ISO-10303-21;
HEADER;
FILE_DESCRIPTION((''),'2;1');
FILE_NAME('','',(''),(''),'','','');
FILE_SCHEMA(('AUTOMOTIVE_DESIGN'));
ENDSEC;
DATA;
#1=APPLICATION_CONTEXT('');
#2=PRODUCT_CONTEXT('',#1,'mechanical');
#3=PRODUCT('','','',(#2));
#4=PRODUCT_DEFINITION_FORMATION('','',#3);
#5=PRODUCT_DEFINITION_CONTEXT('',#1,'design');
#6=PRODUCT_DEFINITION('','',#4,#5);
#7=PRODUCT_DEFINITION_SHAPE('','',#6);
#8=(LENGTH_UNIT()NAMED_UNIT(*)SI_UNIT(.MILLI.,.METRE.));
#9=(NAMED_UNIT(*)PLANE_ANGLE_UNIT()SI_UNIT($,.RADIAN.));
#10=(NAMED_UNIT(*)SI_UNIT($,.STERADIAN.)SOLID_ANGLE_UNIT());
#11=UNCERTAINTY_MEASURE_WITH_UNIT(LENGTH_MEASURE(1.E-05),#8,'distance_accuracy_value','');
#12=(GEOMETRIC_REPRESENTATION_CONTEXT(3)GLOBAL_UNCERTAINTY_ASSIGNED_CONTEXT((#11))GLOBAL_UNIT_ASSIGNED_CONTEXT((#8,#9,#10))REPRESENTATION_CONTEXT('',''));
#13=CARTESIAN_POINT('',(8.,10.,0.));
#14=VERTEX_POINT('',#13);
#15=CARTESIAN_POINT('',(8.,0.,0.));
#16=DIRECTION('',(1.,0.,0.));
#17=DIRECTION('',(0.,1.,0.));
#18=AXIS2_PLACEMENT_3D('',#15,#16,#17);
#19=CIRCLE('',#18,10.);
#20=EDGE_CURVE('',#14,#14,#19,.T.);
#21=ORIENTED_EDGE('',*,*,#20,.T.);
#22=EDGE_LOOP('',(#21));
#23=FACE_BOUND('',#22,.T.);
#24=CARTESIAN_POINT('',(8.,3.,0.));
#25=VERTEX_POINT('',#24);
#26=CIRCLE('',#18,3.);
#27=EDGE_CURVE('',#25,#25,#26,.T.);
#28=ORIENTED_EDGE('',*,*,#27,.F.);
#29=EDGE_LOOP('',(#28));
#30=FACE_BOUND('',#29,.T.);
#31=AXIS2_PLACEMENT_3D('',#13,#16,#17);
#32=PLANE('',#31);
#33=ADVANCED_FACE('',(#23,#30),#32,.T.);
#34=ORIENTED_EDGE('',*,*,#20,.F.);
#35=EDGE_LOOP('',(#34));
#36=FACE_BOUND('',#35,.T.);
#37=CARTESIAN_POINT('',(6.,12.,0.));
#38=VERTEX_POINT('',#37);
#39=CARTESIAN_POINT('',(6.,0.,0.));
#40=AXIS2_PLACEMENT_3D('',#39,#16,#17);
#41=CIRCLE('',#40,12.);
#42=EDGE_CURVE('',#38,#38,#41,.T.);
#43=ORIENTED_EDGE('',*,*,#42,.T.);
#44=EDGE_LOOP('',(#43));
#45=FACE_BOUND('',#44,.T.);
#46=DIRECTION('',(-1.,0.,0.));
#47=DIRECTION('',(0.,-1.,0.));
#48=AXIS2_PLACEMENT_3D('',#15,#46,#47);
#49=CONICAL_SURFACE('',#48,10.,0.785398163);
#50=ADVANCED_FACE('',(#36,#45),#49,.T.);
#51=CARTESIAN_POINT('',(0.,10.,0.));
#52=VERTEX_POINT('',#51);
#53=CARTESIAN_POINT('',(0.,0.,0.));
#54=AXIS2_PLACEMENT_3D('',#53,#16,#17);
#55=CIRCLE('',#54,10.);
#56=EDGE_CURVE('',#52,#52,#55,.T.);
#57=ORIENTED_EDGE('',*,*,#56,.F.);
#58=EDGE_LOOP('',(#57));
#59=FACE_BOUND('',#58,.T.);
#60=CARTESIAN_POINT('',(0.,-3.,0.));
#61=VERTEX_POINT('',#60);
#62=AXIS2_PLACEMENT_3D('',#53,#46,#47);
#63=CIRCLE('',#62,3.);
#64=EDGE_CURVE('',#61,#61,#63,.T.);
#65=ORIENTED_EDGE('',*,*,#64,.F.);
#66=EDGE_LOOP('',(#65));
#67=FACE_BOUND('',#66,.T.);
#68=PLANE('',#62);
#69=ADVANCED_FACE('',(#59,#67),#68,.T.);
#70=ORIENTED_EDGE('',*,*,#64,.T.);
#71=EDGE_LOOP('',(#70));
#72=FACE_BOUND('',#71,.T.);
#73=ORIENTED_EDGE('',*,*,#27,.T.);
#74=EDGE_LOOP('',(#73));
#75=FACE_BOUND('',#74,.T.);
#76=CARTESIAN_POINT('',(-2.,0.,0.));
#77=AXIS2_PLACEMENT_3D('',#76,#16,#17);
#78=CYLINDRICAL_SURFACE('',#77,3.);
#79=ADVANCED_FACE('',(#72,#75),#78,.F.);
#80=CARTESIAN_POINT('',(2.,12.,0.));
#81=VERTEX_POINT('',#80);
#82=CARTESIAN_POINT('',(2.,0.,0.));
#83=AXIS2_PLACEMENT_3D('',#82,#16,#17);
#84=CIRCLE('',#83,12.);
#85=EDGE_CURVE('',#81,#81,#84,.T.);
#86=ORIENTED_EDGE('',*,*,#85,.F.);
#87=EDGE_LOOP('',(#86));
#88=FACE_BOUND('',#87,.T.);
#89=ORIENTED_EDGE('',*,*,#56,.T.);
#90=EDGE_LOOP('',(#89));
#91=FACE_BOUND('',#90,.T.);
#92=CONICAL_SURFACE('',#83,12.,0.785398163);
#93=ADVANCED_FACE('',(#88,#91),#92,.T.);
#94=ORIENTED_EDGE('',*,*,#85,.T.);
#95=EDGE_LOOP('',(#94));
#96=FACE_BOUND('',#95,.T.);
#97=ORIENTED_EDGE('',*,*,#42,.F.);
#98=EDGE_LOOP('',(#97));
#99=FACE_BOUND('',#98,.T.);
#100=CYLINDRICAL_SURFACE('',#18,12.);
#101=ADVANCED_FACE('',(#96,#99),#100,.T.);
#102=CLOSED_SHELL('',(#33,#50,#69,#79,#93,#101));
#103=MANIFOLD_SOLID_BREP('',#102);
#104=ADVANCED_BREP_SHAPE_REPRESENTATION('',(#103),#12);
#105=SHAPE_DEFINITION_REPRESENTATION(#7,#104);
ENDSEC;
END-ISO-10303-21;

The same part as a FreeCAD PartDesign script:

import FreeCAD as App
import Part
import Sketcher
from FreeCAD import Vector

doc = App.newDocument("Part")
params = doc.addObject("Spreadsheet::Sheet", "Params")
for row, (alias, value) in enumerate([
    ("sketch1_width", "8 mm"),
    ("sketch1_width2", "4 mm"),
    ("sketch1_height", "10 mm"),
    ("revolution_angle", "360 deg"),
    ("sketch2_diameter", "6 mm"),
    ("pocket1_length", "10 mm"),
], start=1):
    params.set(f"A{row}", alias)
    params.set(f"B{row}", "=" + value)
    params.setAlias(f"B{row}", alias)

body = doc.addObject("PartDesign::Body", "Body")

# Sketch on XY plane
sketch1 = body.newObject("Sketcher::SketchObject", "Sketch")
sketch1.AttachmentSupport = (doc.getObject("XY_Plane"), [""])
sketch1.MapMode = "FlatFace"
sketch1.addGeometry(Part.LineSegment(Vector(0, 10, 0), Vector(0, 0, 0)), False)
sketch1.addGeometry(Part.LineSegment(Vector(0, 0, 0), Vector(8, 0, 0)), False)
sketch1.addGeometry(Part.LineSegment(Vector(8, 0, 0), Vector(8, 10, 0)), False)
sketch1.addGeometry(Part.LineSegment(Vector(8, 10, 0), Vector(6, 12, 0)), False)
sketch1.addGeometry(Part.LineSegment(Vector(6, 12, 0), Vector(2, 12, 0)), False)
sketch1.addGeometry(Part.LineSegment(Vector(2, 12, 0), Vector(0, 10, 0)), False)
sketch1.addConstraint(Sketcher.Constraint("Coincident", 0, 2, 1, 1))
sketch1.addConstraint(Sketcher.Constraint("Coincident", 1, 2, 2, 1))
sketch1.addConstraint(Sketcher.Constraint("Coincident", 2, 2, 3, 1))
sketch1.addConstraint(Sketcher.Constraint("Coincident", 3, 2, 4, 1))
sketch1.addConstraint(Sketcher.Constraint("Coincident", 4, 2, 5, 1))
sketch1.addConstraint(Sketcher.Constraint("Coincident", 5, 2, 0, 1))
sketch1.addConstraint(Sketcher.Constraint("Vertical", 0))
sketch1.addConstraint(Sketcher.Constraint("Horizontal", 1))
sketch1.addConstraint(Sketcher.Constraint("Vertical", 2))
sketch1.addConstraint(Sketcher.Constraint("Horizontal", 4))
sketch1.addConstraint(Sketcher.Constraint("Coincident", 0, 2, -1, 1))
sketch1.addConstraint(Sketcher.Constraint("Perpendicular", 3, 5))
sketch1.addConstraint(Sketcher.Constraint("Horizontal", 2, 2, 5, 2))
sketch1.addConstraint(Sketcher.Constraint("Equal", 3, 5))
sketch1.addConstraint(Sketcher.Constraint("DistanceX", 1, 1, 1, 2, 8.0))
sketch1.addConstraint(Sketcher.Constraint("DistanceX", 4, 2, 4, 1, 4.0))
sketch1.addConstraint(Sketcher.Constraint("DistanceY", 0, 2, 0, 1, 10.0))
sketch1.setExpression("Constraints[14]", "Params.sketch1_width")
sketch1.setExpression("Constraints[15]", "Params.sketch1_width2")
sketch1.setExpression("Constraints[16]", "Params.sketch1_height")
revolution = body.newObject("PartDesign::Revolution", "Revolution")
revolution.Profile = sketch1
revolution.ReferenceAxis = (sketch1, ["H_Axis"])
revolution.setExpression("Angle", "Params.revolution_angle")

# Sketch on YZ plane
sketch2 = body.newObject("Sketcher::SketchObject", "Sketch001")
sketch2.AttachmentSupport = (doc.getObject("YZ_Plane"), [""])
sketch2.MapMode = "FlatFace"
sketch2.AttachmentOffset = App.Placement(Vector(0, 0, 8), App.Rotation())
sketch2.addGeometry(Part.Circle(Vector(0, 0, 0), Vector(0, 0, 1), 3), False)
sketch2.addConstraint(Sketcher.Constraint("Coincident", 0, 3, -1, 1))
sketch2.addConstraint(Sketcher.Constraint("Diameter", 0, 6.0))
sketch2.setExpression("Constraints[1]", "Params.sketch2_diameter")
pocket1 = body.newObject("PartDesign::Pocket", "Pocket")
pocket1.Profile = sketch2
pocket1.setExpression("Length", "Params.pocket1_length")

doc.recompute()
